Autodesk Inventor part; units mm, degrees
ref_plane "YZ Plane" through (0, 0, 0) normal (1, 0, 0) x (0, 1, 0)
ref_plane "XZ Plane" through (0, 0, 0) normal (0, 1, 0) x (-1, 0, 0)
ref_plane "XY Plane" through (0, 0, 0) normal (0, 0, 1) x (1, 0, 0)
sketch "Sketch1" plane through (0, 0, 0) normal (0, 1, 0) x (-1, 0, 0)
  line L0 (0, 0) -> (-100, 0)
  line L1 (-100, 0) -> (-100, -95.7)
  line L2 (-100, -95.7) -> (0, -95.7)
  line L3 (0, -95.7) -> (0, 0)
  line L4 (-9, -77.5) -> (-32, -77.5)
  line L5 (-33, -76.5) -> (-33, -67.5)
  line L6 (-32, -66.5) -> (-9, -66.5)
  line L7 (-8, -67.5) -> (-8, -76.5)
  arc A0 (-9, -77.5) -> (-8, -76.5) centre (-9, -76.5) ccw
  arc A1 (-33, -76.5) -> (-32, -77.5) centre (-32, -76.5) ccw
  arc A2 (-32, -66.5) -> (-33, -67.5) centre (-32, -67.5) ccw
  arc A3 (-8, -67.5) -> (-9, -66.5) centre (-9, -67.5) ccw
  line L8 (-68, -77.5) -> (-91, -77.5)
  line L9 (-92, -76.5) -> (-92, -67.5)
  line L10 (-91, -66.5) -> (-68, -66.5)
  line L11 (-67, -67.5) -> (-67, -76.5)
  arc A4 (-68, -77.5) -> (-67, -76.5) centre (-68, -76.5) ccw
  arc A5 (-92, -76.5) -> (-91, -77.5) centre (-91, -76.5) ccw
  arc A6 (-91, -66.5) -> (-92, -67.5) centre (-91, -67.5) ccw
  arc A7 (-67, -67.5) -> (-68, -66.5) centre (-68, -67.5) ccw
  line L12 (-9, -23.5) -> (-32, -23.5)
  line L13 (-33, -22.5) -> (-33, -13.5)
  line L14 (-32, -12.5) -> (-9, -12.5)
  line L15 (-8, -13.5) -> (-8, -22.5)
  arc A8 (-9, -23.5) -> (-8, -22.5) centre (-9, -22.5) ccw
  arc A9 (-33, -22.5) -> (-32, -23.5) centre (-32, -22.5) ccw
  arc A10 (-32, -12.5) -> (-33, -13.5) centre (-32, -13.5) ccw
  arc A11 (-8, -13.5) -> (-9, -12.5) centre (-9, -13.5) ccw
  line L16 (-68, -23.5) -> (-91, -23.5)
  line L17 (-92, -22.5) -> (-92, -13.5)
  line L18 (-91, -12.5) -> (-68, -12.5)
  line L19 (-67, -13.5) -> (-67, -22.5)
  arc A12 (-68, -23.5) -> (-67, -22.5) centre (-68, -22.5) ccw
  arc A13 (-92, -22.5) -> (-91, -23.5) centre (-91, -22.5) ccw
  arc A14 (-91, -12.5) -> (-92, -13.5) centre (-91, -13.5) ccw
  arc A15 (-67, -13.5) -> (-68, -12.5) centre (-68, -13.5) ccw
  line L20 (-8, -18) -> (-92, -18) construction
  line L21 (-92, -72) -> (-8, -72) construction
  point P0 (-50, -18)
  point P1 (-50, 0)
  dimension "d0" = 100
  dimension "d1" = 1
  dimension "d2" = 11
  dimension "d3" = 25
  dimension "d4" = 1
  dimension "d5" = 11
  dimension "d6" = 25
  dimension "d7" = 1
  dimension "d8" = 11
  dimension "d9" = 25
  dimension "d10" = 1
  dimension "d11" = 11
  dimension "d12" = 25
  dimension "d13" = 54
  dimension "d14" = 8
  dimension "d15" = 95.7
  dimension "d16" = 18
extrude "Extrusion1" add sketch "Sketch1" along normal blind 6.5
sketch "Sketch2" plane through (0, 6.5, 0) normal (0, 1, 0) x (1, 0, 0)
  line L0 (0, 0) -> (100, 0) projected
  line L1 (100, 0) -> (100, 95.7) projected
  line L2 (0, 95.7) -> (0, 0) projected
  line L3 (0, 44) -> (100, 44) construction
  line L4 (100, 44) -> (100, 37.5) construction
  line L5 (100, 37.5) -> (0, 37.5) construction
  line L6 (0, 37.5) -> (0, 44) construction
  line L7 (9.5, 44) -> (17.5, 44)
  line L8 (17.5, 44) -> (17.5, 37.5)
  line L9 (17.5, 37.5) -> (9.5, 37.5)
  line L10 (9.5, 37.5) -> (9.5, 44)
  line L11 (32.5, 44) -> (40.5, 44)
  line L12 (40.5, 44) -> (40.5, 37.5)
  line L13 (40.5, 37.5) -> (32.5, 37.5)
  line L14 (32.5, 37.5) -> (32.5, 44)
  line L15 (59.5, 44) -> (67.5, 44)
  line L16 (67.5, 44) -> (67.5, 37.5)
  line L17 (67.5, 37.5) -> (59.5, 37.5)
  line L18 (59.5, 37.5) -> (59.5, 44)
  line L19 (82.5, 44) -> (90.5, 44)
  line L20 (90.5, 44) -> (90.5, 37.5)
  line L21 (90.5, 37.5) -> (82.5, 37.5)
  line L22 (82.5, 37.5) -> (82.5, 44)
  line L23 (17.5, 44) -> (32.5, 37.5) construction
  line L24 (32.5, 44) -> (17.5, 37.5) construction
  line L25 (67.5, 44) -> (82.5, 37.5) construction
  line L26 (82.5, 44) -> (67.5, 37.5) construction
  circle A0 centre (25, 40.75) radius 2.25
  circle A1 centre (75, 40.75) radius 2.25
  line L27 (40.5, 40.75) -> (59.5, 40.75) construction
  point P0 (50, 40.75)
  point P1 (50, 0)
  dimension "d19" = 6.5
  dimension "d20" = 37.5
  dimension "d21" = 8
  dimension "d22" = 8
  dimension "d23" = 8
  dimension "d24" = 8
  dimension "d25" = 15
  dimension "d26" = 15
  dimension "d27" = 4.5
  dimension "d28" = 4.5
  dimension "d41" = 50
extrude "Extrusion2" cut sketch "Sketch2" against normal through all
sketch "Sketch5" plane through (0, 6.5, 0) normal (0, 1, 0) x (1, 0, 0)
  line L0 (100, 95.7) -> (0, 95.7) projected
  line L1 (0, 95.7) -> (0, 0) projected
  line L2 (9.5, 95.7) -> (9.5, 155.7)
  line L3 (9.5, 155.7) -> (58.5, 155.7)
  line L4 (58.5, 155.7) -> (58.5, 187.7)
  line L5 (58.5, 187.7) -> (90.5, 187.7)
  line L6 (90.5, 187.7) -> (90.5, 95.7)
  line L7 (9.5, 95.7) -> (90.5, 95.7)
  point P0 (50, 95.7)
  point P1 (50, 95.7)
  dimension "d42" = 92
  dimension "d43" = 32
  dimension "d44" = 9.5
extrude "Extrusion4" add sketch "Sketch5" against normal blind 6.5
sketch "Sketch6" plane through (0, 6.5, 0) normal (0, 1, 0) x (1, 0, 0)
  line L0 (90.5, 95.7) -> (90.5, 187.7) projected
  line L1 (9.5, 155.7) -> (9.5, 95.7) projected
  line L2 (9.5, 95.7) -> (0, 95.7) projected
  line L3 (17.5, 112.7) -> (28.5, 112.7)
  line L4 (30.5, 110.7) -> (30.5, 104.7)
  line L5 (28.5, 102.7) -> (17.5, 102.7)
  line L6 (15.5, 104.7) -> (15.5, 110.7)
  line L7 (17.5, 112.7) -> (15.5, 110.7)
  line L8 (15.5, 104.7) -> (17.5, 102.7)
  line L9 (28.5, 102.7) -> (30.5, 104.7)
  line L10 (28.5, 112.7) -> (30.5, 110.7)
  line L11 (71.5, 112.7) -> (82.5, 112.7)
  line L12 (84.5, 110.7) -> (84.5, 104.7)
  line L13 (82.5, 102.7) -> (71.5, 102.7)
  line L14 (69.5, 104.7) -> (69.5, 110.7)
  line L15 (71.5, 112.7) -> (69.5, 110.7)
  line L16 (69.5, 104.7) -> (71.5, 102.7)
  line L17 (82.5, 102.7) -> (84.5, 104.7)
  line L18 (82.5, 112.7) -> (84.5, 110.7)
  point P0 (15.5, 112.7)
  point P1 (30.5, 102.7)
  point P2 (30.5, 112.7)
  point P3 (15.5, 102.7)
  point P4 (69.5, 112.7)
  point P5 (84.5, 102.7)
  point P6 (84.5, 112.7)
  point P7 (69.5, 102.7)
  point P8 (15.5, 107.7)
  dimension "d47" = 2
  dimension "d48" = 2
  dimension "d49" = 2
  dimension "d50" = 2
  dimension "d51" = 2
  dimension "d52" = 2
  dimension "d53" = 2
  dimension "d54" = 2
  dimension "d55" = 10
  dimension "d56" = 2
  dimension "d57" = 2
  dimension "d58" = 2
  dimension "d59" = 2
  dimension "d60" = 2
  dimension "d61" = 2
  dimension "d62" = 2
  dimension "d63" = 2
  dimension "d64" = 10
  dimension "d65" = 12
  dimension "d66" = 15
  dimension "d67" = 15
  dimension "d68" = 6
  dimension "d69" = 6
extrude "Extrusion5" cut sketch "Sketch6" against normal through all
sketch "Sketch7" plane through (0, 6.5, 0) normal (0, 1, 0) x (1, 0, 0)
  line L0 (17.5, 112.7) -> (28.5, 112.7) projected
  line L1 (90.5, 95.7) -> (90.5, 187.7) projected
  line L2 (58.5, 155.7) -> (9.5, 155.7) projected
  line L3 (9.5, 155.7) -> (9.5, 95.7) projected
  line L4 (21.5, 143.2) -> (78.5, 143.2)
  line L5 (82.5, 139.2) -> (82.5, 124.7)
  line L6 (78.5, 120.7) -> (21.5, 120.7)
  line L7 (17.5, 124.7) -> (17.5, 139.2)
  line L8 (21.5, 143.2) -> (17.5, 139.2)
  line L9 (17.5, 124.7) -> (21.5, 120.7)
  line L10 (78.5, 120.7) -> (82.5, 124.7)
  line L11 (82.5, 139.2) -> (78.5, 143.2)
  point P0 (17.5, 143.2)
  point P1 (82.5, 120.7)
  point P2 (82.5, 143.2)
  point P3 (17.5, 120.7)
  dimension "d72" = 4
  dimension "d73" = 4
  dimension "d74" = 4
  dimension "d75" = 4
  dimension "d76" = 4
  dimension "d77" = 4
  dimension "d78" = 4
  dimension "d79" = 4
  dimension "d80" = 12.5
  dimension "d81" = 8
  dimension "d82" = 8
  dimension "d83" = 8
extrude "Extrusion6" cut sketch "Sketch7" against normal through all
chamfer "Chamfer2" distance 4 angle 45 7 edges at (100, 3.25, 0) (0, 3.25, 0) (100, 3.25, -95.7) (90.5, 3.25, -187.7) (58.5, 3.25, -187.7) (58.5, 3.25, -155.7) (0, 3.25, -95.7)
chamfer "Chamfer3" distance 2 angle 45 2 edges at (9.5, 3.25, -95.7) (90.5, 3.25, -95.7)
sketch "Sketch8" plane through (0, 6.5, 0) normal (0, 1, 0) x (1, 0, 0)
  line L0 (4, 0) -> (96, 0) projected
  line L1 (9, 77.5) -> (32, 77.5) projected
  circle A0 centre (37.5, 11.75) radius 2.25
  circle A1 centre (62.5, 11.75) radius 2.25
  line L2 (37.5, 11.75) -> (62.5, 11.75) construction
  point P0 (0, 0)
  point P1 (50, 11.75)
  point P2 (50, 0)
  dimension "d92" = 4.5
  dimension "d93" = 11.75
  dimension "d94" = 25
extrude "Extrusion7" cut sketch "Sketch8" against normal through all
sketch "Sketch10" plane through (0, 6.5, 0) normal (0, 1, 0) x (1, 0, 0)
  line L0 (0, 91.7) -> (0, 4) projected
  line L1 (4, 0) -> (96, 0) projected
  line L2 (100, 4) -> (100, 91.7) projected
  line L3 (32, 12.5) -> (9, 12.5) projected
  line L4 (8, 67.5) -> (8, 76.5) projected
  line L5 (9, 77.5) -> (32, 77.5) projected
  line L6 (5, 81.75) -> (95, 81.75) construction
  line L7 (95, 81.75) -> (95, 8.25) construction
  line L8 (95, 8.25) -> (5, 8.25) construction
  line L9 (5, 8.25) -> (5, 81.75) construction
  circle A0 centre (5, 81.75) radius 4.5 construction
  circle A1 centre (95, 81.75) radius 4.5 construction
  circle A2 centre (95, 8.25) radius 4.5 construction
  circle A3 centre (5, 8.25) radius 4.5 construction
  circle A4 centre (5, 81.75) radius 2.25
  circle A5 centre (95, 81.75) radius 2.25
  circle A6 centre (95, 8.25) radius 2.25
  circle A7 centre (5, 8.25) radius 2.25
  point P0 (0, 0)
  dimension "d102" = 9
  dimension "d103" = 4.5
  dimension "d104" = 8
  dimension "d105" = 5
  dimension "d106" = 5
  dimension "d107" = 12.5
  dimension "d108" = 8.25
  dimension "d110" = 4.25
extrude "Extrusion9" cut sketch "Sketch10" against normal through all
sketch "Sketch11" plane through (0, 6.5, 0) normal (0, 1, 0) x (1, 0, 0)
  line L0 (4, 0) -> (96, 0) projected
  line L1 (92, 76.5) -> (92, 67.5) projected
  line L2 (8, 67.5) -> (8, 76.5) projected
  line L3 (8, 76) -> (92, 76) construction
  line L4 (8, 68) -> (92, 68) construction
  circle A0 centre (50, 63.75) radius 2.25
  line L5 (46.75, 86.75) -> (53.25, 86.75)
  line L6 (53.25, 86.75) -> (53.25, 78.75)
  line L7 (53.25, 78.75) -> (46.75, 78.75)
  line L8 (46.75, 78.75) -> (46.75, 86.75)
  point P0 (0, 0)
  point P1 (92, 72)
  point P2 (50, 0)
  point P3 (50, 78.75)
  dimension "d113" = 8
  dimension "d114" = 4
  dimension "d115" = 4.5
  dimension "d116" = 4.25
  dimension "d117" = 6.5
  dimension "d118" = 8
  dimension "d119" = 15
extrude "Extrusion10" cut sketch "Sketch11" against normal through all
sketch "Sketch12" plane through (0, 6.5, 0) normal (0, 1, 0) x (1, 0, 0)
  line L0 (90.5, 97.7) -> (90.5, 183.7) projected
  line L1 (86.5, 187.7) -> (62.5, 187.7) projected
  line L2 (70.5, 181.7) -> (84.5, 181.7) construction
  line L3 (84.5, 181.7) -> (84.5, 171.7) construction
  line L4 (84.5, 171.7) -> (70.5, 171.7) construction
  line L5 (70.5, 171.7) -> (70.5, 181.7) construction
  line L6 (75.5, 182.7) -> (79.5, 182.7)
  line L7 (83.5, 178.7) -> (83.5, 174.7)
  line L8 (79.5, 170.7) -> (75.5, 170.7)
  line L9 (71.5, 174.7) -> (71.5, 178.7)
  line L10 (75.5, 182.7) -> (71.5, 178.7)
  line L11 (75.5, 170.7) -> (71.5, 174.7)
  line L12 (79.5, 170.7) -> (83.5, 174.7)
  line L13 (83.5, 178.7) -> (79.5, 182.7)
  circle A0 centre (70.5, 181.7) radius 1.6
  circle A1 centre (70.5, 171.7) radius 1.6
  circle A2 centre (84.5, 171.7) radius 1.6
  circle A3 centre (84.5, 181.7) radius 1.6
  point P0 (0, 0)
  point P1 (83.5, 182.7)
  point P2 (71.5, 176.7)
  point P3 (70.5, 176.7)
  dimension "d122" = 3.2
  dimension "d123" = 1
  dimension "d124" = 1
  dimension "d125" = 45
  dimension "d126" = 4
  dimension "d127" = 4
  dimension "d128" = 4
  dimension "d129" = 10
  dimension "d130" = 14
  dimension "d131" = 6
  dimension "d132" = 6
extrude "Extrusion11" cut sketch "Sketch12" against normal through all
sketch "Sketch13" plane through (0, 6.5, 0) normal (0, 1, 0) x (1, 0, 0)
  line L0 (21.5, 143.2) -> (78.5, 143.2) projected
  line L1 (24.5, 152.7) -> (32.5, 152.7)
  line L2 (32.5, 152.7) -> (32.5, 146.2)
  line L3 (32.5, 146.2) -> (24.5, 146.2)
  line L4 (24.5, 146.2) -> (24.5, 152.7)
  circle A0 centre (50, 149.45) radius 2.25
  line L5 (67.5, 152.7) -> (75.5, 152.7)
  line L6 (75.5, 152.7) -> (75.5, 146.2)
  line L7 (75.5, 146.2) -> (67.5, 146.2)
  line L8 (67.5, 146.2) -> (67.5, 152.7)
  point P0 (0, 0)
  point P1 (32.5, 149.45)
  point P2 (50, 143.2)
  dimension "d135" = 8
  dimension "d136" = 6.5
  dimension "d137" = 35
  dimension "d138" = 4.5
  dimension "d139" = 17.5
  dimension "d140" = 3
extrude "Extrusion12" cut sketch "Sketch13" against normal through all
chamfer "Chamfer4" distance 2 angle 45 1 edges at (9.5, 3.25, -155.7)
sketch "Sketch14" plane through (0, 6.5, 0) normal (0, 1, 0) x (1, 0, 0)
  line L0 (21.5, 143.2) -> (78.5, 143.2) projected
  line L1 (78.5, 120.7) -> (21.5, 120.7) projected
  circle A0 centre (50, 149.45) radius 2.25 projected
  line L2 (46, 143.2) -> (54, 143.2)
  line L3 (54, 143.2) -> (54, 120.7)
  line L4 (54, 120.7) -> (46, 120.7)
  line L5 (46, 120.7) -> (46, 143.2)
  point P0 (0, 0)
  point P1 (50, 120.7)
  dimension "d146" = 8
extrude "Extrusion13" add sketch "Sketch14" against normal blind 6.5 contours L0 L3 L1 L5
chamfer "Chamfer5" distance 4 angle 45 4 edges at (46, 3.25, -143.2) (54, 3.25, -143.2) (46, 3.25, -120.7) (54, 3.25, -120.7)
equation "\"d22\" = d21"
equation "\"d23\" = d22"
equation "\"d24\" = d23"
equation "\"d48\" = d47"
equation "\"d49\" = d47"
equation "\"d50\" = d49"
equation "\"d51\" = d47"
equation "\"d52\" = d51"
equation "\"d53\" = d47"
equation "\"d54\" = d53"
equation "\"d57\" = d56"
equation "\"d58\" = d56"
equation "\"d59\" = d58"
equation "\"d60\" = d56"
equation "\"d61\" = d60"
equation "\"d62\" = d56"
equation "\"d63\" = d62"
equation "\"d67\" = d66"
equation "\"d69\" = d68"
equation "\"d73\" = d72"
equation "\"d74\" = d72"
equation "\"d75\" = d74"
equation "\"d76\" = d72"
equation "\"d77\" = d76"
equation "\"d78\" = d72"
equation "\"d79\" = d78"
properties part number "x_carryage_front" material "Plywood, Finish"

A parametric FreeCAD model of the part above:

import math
import FreeCAD as App
import Part
import Sketcher

V = App.Vector
Q = App.Units.Quantity


def edges_at(feature, points):
    """Names of the edges that pass closest to the given points."""
    edges = feature.Shape.Edges
    near = lambda p: min(range(len(edges)), key=lambda i: edges[i].distToShape(Part.Vertex(*p))[0])
    return sorted({f"Edge{near(p) + 1}" for p in points})

doc = App.newDocument("Part")
body = doc.addObject("PartDesign::Body", "Body")

# Sketch on XZ plane
sketch1 = doc.addObject("Sketcher::SketchObject", "Sketch")
body.addObject(sketch1)
sketch1.AttachmentSupport = (doc.XZ_Plane, [""])
sketch1.MapMode = "FlatFace"
sketch1.addGeometry(Part.LineSegment(V(0, -95.7, 0), V(0, 0, 0)), False)
sketch1.addGeometry(Part.LineSegment(V(0, 0, 0), V(100, 0, 0)), False)
sketch1.addGeometry(Part.LineSegment(V(100, 0, 0), V(100, -95.7, 0)), False)
sketch1.addGeometry(Part.LineSegment(V(100, -95.7, 0), V(0, -95.7, 0)), False)
sketch1.addGeometry(Part.ArcOfCircle(Part.Circle(V(68, -76.5, 0), V(0, 0, 1), 1), math.radians(180), math.radians(270)), False)
sketch1.addGeometry(Part.LineSegment(V(68, -77.5, 0), V(91, -77.5, 0)), False)
sketch1.addGeometry(Part.ArcOfCircle(Part.Circle(V(91, -76.5, 0), V(0, 0, 1), 1), math.radians(-90), math.radians(0)), False)
sketch1.addGeometry(Part.LineSegment(V(92, -76.5, 0), V(92, -67.5, 0)), False)
sketch1.addGeometry(Part.ArcOfCircle(Part.Circle(V(91, -67.5, 0), V(0, 0, 1), 1), math.radians(0), math.radians(90)), False)
sketch1.addGeometry(Part.LineSegment(V(91, -66.5, 0), V(68, -66.5, 0)), False)
sketch1.addGeometry(Part.ArcOfCircle(Part.Circle(V(68, -67.5, 0), V(0, 0, 1), 1), math.radians(90), math.radians(180)), False)
sketch1.addGeometry(Part.LineSegment(V(67, -67.5, 0), V(67, -76.5, 0)), False)
sketch1.addGeometry(Part.ArcOfCircle(Part.Circle(V(9, -76.5, 0), V(0, 0, 1), 1), math.radians(180), math.radians(270)), False)
sketch1.addGeometry(Part.LineSegment(V(9, -77.5, 0), V(32, -77.5, 0)), False)
sketch1.addGeometry(Part.ArcOfCircle(Part.Circle(V(32, -76.5, 0), V(0, 0, 1), 1), math.radians(-90), math.radians(0)), False)
sketch1.addGeometry(Part.LineSegment(V(33, -76.5, 0), V(33, -67.5, 0)), False)
sketch1.addGeometry(Part.ArcOfCircle(Part.Circle(V(32, -67.5, 0), V(0, 0, 1), 1), math.radians(0), math.radians(90)), False)
sketch1.addGeometry(Part.LineSegment(V(32, -66.5, 0), V(9, -66.5, 0)), False)
sketch1.addGeometry(Part.ArcOfCircle(Part.Circle(V(9, -67.5, 0), V(0, 0, 1), 1), math.radians(90), math.radians(180)), False)
sketch1.addGeometry(Part.LineSegment(V(8, -67.5, 0), V(8, -76.5, 0)), False)
sketch1.addGeometry(Part.ArcOfCircle(Part.Circle(V(68, -22.5, 0), V(0, 0, 1), 1), math.radians(180), math.radians(270)), False)
sketch1.addGeometry(Part.LineSegment(V(68, -23.5, 0), V(91, -23.5, 0)), False)
sketch1.addGeometry(Part.ArcOfCircle(Part.Circle(V(91, -22.5, 0), V(0, 0, 1), 1), math.radians(-90), math.radians(0)), False)
sketch1.addGeometry(Part.LineSegment(V(92, -22.5, 0), V(92, -13.5, 0)), False)
sketch1.addGeometry(Part.ArcOfCircle(Part.Circle(V(91, -13.5, 0), V(0, 0, 1), 1), math.radians(0), math.radians(90)), False)
sketch1.addGeometry(Part.LineSegment(V(91, -12.5, 0), V(68, -12.5, 0)), False)
sketch1.addGeometry(Part.ArcOfCircle(Part.Circle(V(68, -13.5, 0), V(0, 0, 1), 1), math.radians(90), math.radians(180)), False)
sketch1.addGeometry(Part.LineSegment(V(67, -13.5, 0), V(67, -22.5, 0)), False)
sketch1.addGeometry(Part.ArcOfCircle(Part.Circle(V(9, -22.5, 0), V(0, 0, 1), 1), math.radians(180), math.radians(270)), False)
sketch1.addGeometry(Part.LineSegment(V(9, -23.5, 0), V(32, -23.5, 0)), False)
sketch1.addGeometry(Part.ArcOfCircle(Part.Circle(V(32, -22.5, 0), V(0, 0, 1), 1), math.radians(-90), math.radians(0)), False)
sketch1.addGeometry(Part.LineSegment(V(33, -22.5, 0), V(33, -13.5, 0)), False)
sketch1.addGeometry(Part.ArcOfCircle(Part.Circle(V(32, -13.5, 0), V(0, 0, 1), 1), math.radians(0), math.radians(90)), False)
sketch1.addGeometry(Part.LineSegment(V(32, -12.5, 0), V(9, -12.5, 0)), False)
sketch1.addGeometry(Part.ArcOfCircle(Part.Circle(V(9, -13.5, 0), V(0, 0, 1), 1), math.radians(90), math.radians(180)), False)
sketch1.addGeometry(Part.LineSegment(V(8, -13.5, 0), V(8, -22.5, 0)), False)
sketch1.addConstraint(Sketcher.Constraint("Coincident", 0, 2, 1, 1))
sketch1.addConstraint(Sketcher.Constraint("Coincident", 1, 2, 2, 1))
sketch1.addConstraint(Sketcher.Constraint("Coincident", 2, 2, 3, 1))
sketch1.addConstraint(Sketcher.Constraint("Coincident", 3, 2, 0, 1))
sketch1.addConstraint(Sketcher.Constraint("Tangent", 4, 2, 5, 1))
sketch1.addConstraint(Sketcher.Constraint("Tangent", 5, 2, 6, 1))
sketch1.addConstraint(Sketcher.Constraint("Tangent", 6, 2, 7, 1))
sketch1.addConstraint(Sketcher.Constraint("Tangent", 7, 2, 8, 1))
sketch1.addConstraint(Sketcher.Constraint("Tangent", 8, 2, 9, 1))
sketch1.addConstraint(Sketcher.Constraint("Tangent", 9, 2, 10, 1))
sketch1.addConstraint(Sketcher.Constraint("Tangent", 10, 2, 11, 1))
sketch1.addConstraint(Sketcher.Constraint("Tangent", 11, 2, 4, 1))
sketch1.addConstraint(Sketcher.Constraint("Tangent", 12, 2, 13, 1))
sketch1.addConstraint(Sketcher.Constraint("Tangent", 13, 2, 14, 1))
sketch1.addConstraint(Sketcher.Constraint("Tangent", 14, 2, 15, 1))
sketch1.addConstraint(Sketcher.Constraint("Tangent", 15, 2, 16, 1))
sketch1.addConstraint(Sketcher.Constraint("Tangent", 16, 2, 17, 1))
sketch1.addConstraint(Sketcher.Constraint("Tangent", 17, 2, 18, 1))
sketch1.addConstraint(Sketcher.Constraint("Tangent", 18, 2, 19, 1))
sketch1.addConstraint(Sketcher.Constraint("Tangent", 19, 2, 12, 1))
sketch1.addConstraint(Sketcher.Constraint("Tangent", 20, 2, 21, 1))
sketch1.addConstraint(Sketcher.Constraint("Tangent", 21, 2, 22, 1))
sketch1.addConstraint(Sketcher.Constraint("Tangent", 22, 2, 23, 1))
sketch1.addConstraint(Sketcher.Constraint("Tangent", 23, 2, 24, 1))
sketch1.addConstraint(Sketcher.Constraint("Tangent", 24, 2, 25, 1))
sketch1.addConstraint(Sketcher.Constraint("Tangent", 25, 2, 26, 1))
sketch1.addConstraint(Sketcher.Constraint("Tangent", 26, 2, 27, 1))
sketch1.addConstraint(Sketcher.Constraint("Tangent", 27, 2, 20, 1))
sketch1.addConstraint(Sketcher.Constraint("Tangent", 28, 2, 29, 1))
sketch1.addConstraint(Sketcher.Constraint("Tangent", 29, 2, 30, 1))
sketch1.addConstraint(Sketcher.Constraint("Tangent", 30, 2, 31, 1))
sketch1.addConstraint(Sketcher.Constraint("Tangent", 31, 2, 32, 1))
sketch1.addConstraint(Sketcher.Constraint("Tangent", 32, 2, 33, 1))
sketch1.addConstraint(Sketcher.Constraint("Tangent", 33, 2, 34, 1))
sketch1.addConstraint(Sketcher.Constraint("Tangent", 34, 2, 35, 1))
sketch1.addConstraint(Sketcher.Constraint("Tangent", 35, 2, 28, 1))
sketch1.addConstraint(Sketcher.Constraint("Vertical", 0))
sketch1.addConstraint(Sketcher.Constraint("Horizontal", 1))
sketch1.addConstraint(Sketcher.Constraint("Vertical", 2))
sketch1.addConstraint(Sketcher.Constraint("Horizontal", 3))
sketch1.addConstraint(Sketcher.Constraint("Horizontal", 5))
sketch1.addConstraint(Sketcher.Constraint("Vertical", 7))
sketch1.addConstraint(Sketcher.Constraint("Horizontal", 9))
sketch1.addConstraint(Sketcher.Constraint("Vertical", 11))
sketch1.addConstraint(Sketcher.Constraint("Horizontal", 13))
sketch1.addConstraint(Sketcher.Constraint("Vertical", 15))
sketch1.addConstraint(Sketcher.Constraint("Horizontal", 17))
sketch1.addConstraint(Sketcher.Constraint("Vertical", 19))
sketch1.addConstraint(Sketcher.Constraint("Horizontal", 21))
sketch1.addConstraint(Sketcher.Constraint("Vertical", 23))
sketch1.addConstraint(Sketcher.Constraint("Horizontal", 25))
sketch1.addConstraint(Sketcher.Constraint("Vertical", 27))
sketch1.addConstraint(Sketcher.Constraint("Horizontal", 29))
sketch1.addConstraint(Sketcher.Constraint("Vertical", 31))
sketch1.addConstraint(Sketcher.Constraint("Horizontal", 33))
sketch1.addConstraint(Sketcher.Constraint("Vertical", 35))
sketch1.addConstraint(Sketcher.Constraint("Coincident", 0, 2, -1, 1))
sketch1.addConstraint(Sketcher.Constraint("Equal", 4, 6))
sketch1.addConstraint(Sketcher.Constraint("Equal", 6, 8))
sketch1.addConstraint(Sketcher.Constraint("Equal", 8, 10))
sketch1.addConstraint(Sketcher.Constraint("Equal", 10, 12))
sketch1.addConstraint(Sketcher.Constraint("Equal", 12, 14))
sketch1.addConstraint(Sketcher.Constraint("Equal", 14, 16))
sketch1.addConstraint(Sketcher.Constraint("Equal", 16, 18))
sketch1.addConstraint(Sketcher.Constraint("Equal", 18, 20))
sketch1.addConstraint(Sketcher.Constraint("Equal", 20, 22))
sketch1.addConstraint(Sketcher.Constraint("Equal", 22, 24))
sketch1.addConstraint(Sketcher.Constraint("Equal", 24, 26))
sketch1.addConstraint(Sketcher.Constraint("Equal", 26, 28))
sketch1.addConstraint(Sketcher.Constraint("Equal", 28, 30))
sketch1.addConstraint(Sketcher.Constraint("Equal", 30, 32))
sketch1.addConstraint(Sketcher.Constraint("Equal", 32, 34))
sketch1.addConstraint(Sketcher.Constraint("Horizontal", 6, 3, 12, 3))
sketch1.addConstraint(Sketcher.Constraint("Horizontal", 10, 3, 16, 3))
sketch1.addConstraint(Sketcher.Constraint("Horizontal", 22, 3, 28, 3))
sketch1.addConstraint(Sketcher.Constraint("Horizontal", 26, 3, 32, 3))
sketch1.addConstraint(Sketcher.Constraint("Vertical", 10, 3, 20, 3))
sketch1.addConstraint(Sketcher.Constraint("Vertical", 8, 3, 22, 3))
sketch1.addConstraint(Sketcher.Constraint("Vertical", 18, 3, 28, 3))
sketch1.addConstraint(Sketcher.Constraint("Vertical", 16, 3, 30, 3))
sketch1.addConstraint(Sketcher.Constraint("Equal", 9, 13))
sketch1.addConstraint(Sketcher.Constraint("Equal", 19, 23))
sketch1.addConstraint(Sketcher.Constraint("Radius", 4, Q("1 mm")))
sketch1.addConstraint(Sketcher.Constraint("DistanceX", 1, 1, 1, 2, Q("100 mm")))
sketch1.addConstraint(Sketcher.Constraint("DistanceY", 0, 1, 0, 2, Q("95.7 mm")))
sketch1.addConstraint(Sketcher.Constraint("DistanceX", -1, 1, 18, 2, Q("8 mm")))
sketch1.addConstraint(Sketcher.Constraint("DistanceY", 4, 3, 20, 3, Q("54 mm")))
sketch1.addConstraint(Sketcher.Constraint("DistanceX", 6, 2, 2, 2, Q("8 mm")))
sketch1.addConstraint(Sketcher.Constraint("DistanceY", 5, 2, 8, 2, Q("11 mm")))
sketch1.addConstraint(Sketcher.Constraint("DistanceX", 5, 1, 5, 2, Q("23 mm")))
sketch1.addConstraint(Sketcher.Constraint("DistanceY", 4, 3, -1, 1, Q("76.5 mm")))
pad1 = doc.addObject("PartDesign::Pad", "Pad")
body.addObject(pad1)
pad1.Profile = sketch1
pad1.Length = 6.5
pad1.Reversed = True

# Sketch on XZ plane
sketch2 = doc.addObject("Sketcher::SketchObject", "Sketch001")
body.addObject(sketch2)
sketch2.AttachmentSupport = (doc.XZ_Plane, [""])
sketch2.MapMode = "FlatFace"
sketch2.AttachmentOffset = App.Placement(V(0, 0, -6.5), App.Rotation())
sketch2.addGeometry(Part.LineSegment(V(17.5, -44, 0), V(9.5, -44, 0)), False)
sketch2.addGeometry(Part.LineSegment(V(9.5, -44, 0), V(9.5, -37.5, 0)), False)
sketch2.addGeometry(Part.LineSegment(V(9.5, -37.5, 0), V(17.5, -37.5, 0)), False)
sketch2.addGeometry(Part.LineSegment(V(17.5, -37.5, 0), V(17.5, -44, 0)), False)
sketch2.addGeometry(Part.LineSegment(V(40.5, -44, 0), V(32.5, -44, 0)), False)
sketch2.addGeometry(Part.LineSegment(V(32.5, -44, 0), V(32.5, -37.5, 0)), False)
sketch2.addGeometry(Part.LineSegment(V(32.5, -37.5, 0), V(40.5, -37.5, 0)), False)
sketch2.addGeometry(Part.LineSegment(V(40.5, -37.5, 0), V(40.5, -44, 0)), False)
sketch2.addGeometry(Part.LineSegment(V(67.5, -44, 0), V(59.5, -44, 0)), False)
sketch2.addGeometry(Part.LineSegment(V(59.5, -44, 0), V(59.5, -37.5, 0)), False)
sketch2.addGeometry(Part.LineSegment(V(59.5, -37.5, 0), V(67.5, -37.5, 0)), False)
sketch2.addGeometry(Part.LineSegment(V(67.5, -37.5, 0), V(67.5, -44, 0)), False)
sketch2.addGeometry(Part.LineSegment(V(90.5, -44, 0), V(82.5, -44, 0)), False)
sketch2.addGeometry(Part.LineSegment(V(82.5, -44, 0), V(82.5, -37.5, 0)), False)
sketch2.addGeometry(Part.LineSegment(V(82.5, -37.5, 0), V(90.5, -37.5, 0)), False)
sketch2.addGeometry(Part.LineSegment(V(90.5, -37.5, 0), V(90.5, -44, 0)), False)
sketch2.addGeometry(Part.Circle(V(25, -40.8, 0), V(0, 0, 1), 2.2), False)
sketch2.addGeometry(Part.Circle(V(75, -40.8, 0), V(0, 0, 1), 2.2), False)
sketch2.addConstraint(Sketcher.Constraint("Coincident", 0, 2, 1, 1))
sketch2.addConstraint(Sketcher.Constraint("Coincident", 1, 2, 2, 1))
sketch2.addConstraint(Sketcher.Constraint("Coincident", 2, 2, 3, 1))
sketch2.addConstraint(Sketcher.Constraint("Coincident", 3, 2, 0, 1))
sketch2.addConstraint(Sketcher.Constraint("Coincident", 4, 2, 5, 1))
sketch2.addConstraint(Sketcher.Constraint("Coincident", 5, 2, 6, 1))
sketch2.addConstraint(Sketcher.Constraint("Coincident", 6, 2, 7, 1))
sketch2.addConstraint(Sketcher.Constraint("Coincident", 7, 2, 4, 1))
sketch2.addConstraint(Sketcher.Constraint("Coincident", 8, 2, 9, 1))
sketch2.addConstraint(Sketcher.Constraint("Coincident", 9, 2, 10, 1))
sketch2.addConstraint(Sketcher.Constraint("Coincident", 10, 2, 11, 1))
sketch2.addConstraint(Sketcher.Constraint("Coincident", 11, 2, 8, 1))
sketch2.addConstraint(Sketcher.Constraint("Coincident", 12, 2, 13, 1))
sketch2.addConstraint(Sketcher.Constraint("Coincident", 13, 2, 14, 1))
sketch2.addConstraint(Sketcher.Constraint("Coincident", 14, 2, 15, 1))
sketch2.addConstraint(Sketcher.Constraint("Coincident", 15, 2, 12, 1))
sketch2.addConstraint(Sketcher.Constraint("Horizontal", 0))
sketch2.addConstraint(Sketcher.Constraint("Vertical", 1))
sketch2.addConstraint(Sketcher.Constraint("Horizontal", 2))
sketch2.addConstraint(Sketcher.Constraint("Vertical", 3))
sketch2.addConstraint(Sketcher.Constraint("Horizontal", 4))
sketch2.addConstraint(Sketcher.Constraint("Vertical", 5))
sketch2.addConstraint(Sketcher.Constraint("Horizontal", 6))
sketch2.addConstraint(Sketcher.Constraint("Vertical", 7))
sketch2.addConstraint(Sketcher.Constraint("Horizontal", 8))
sketch2.addConstraint(Sketcher.Constraint("Vertical", 9))
sketch2.addConstraint(Sketcher.Constraint("Horizontal", 10))
sketch2.addConstraint(Sketcher.Constraint("Vertical", 11))
sketch2.addConstraint(Sketcher.Constraint("Horizontal", 12))
sketch2.addConstraint(Sketcher.Constraint("Vertical", 13))
sketch2.addConstraint(Sketcher.Constraint("Horizontal", 14))
sketch2.addConstraint(Sketcher.Constraint("Vertical", 15))
sketch2.addConstraint(Sketcher.Constraint("Equal", 16, 17))
sketch2.addConstraint(Sketcher.Constraint("Horizontal", 16, 3, 17, 3))
sketch2.addConstraint(Sketcher.Constraint("Horizontal", 3, 2, 4, 2))
sketch2.addConstraint(Sketcher.Constraint("Horizontal", 2, 2, 5, 2))
sketch2.addConstraint(Sketcher.Constraint("Horizontal", 7, 2, 8, 2))
sketch2.addConstraint(Sketcher.Constraint("Horizontal", 6, 2, 9, 2))
sketch2.addConstraint(Sketcher.Constraint("Horizontal", 11, 2, 12, 2))
sketch2.addConstraint(Sketcher.Constraint("Horizontal", 10, 2, 13, 2))
sketch2.addConstraint(Sketcher.Constraint("Equal", 2, 4))
sketch2.addConstraint(Sketcher.Constraint("Equal", 6, 8))
sketch2.addConstraint(Sketcher.Constraint("Equal", 10, 12))
sketch2.addConstraint(Sketcher.Constraint("Diameter", 16, Q("4.5 mm")))
sketch2.addConstraint(Sketcher.Constraint("DistanceX", 0, 2, 0, 1, Q("8 mm")))
sketch2.addConstraint(Sketcher.Constraint("DistanceY", 1, 1, 1, 2, Q("6.5 mm")))
sketch2.addConstraint(Sketcher.Constraint("DistanceX", 16, 3, 17, 3, Q("50 mm")))
sketch2.addConstraint(Sketcher.Constraint("DistanceX", 3, 2, 4, 2, Q("15 mm")))
sketch2.addConstraint(Sketcher.Constraint("DistanceX", 11, 2, 12, 2, Q("15 mm")))
sketch2.addConstraint(Sketcher.Constraint("DistanceY", 1, 2, -1, 1, Q("37.5 mm")))
sketch2.addConstraint(Sketcher.Constraint("DistanceX", -1, 1, 16, 3, Q("25 mm")))
sketch2.addConstraint(Sketcher.Constraint("DistanceX", 7, 2, 8, 2, Q("19 mm")))
sketch2.addConstraint(Sketcher.Constraint("DistanceX", -1, 1, 0, 2, Q("9.5 mm")))
sketch2.addConstraint(Sketcher.Constraint("DistanceY", 16, 3, -1, 1, Q("40.75 mm")))
pocket1 = doc.addObject("PartDesign::Pocket", "Pocket")
body.addObject(pocket1)
pocket1.Profile = sketch2
pocket1.Type = "ThroughAll"
pocket1.Reversed = True

# Sketch on XZ plane
sketch3 = doc.addObject("Sketcher::SketchObject", "Sketch002")
body.addObject(sketch3)
sketch3.AttachmentSupport = (doc.XZ_Plane, [""])
sketch3.MapMode = "FlatFace"
sketch3.AttachmentOffset = App.Placement(V(0, 0, -6.5), App.Rotation())
sketch3.addGeometry(Part.LineSegment(V(10, -96, 0), V(90, -96, 0)), False)
sketch3.addGeometry(Part.LineSegment(V(90, -96, 0), V(90, -188, 0)), False)
sketch3.addGeometry(Part.LineSegment(V(90, -188, 0), V(58, -188, 0)), False)
sketch3.addGeometry(Part.LineSegment(V(58, -188, 0), V(58, -156, 0)), False)
sketch3.addGeometry(Part.LineSegment(V(58, -156, 0), V(10, -156, 0)), False)
sketch3.addGeometry(Part.LineSegment(V(10, -156, 0), V(10, -96, 0)), False)
sketch3.addConstraint(Sketcher.Constraint("Coincident", 0, 2, 1, 1))
sketch3.addConstraint(Sketcher.Constraint("Coincident", 1, 2, 2, 1))
sketch3.addConstraint(Sketcher.Constraint("Coincident", 2, 2, 3, 1))
sketch3.addConstraint(Sketcher.Constraint("Coincident", 3, 2, 4, 1))
sketch3.addConstraint(Sketcher.Constraint("Coincident", 4, 2, 5, 1))
sketch3.addConstraint(Sketcher.Constraint("Coincident", 5, 2, 0, 1))
sketch3.addConstraint(Sketcher.Constraint("Horizontal", 0))
sketch3.addConstraint(Sketcher.Constraint("Vertical", 1))
sketch3.addConstraint(Sketcher.Constraint("Horizontal", 2))
sketch3.addConstraint(Sketcher.Constraint("Vertical", 3))
sketch3.addConstraint(Sketcher.Constraint("Horizontal", 4))
sketch3.addConstraint(Sketcher.Constraint("Vertical", 5))
sketch3.addConstraint(Sketcher.Constraint("Equal", 2, 3))
sketch3.addConstraint(Sketcher.Constraint("DistanceX", 2, 2, 2, 1, Q("32 mm")))
sketch3.addConstraint(Sketcher.Constraint("DistanceY", 1, 2, 1, 1, Q("92 mm")))
sketch3.addConstraint(Sketcher.Constraint("DistanceX", -1, 1, 4, 2, Q("9.5 mm")))
sketch3.addConstraint(Sketcher.Constraint("DistanceX", 0, 1, 0, 2, Q("81 mm")))
sketch3.addConstraint(Sketcher.Constraint("DistanceY", 0, 2, -1, 1, Q("95.7 mm")))
pad2 = doc.addObject("PartDesign::Pad", "Pad001")
body.addObject(pad2)
pad2.Profile = sketch3
pad2.Length = 6.5

# Sketch on XZ plane
sketch4 = doc.addObject("Sketcher::SketchObject", "Sketch003")
body.addObject(sketch4)
sketch4.AttachmentSupport = (doc.XZ_Plane, [""])
sketch4.MapMode = "FlatFace"
sketch4.AttachmentOffset = App.Placement(V(0, 0, -6.5), App.Rotation())
sketch4.addGeometry(Part.LineSegment(V(28.5, -112.7, 0), V(17.5, -112.7, 0)), False)
sketch4.addGeometry(Part.LineSegment(V(17.5, -112.7, 0), V(15.5, -110.7, 0)), False)
sketch4.addGeometry(Part.LineSegment(V(15.5, -110.7, 0), V(15.5, -104.7, 0)), False)
sketch4.addGeometry(Part.LineSegment(V(15.5, -104.7, 0), V(17.5, -102.7, 0)), False)
sketch4.addGeometry(Part.LineSegment(V(17.5, -102.7, 0), V(28.5, -102.7, 0)), False)
sketch4.addGeometry(Part.LineSegment(V(28.5, -102.7, 0), V(30.5, -104.7, 0)), False)
sketch4.addGeometry(Part.LineSegment(V(30.5, -104.7, 0), V(30.5, -110.7, 0)), False)
sketch4.addGeometry(Part.LineSegment(V(30.5, -110.7, 0), V(28.5, -112.7, 0)), False)
sketch4.addGeometry(Part.LineSegment(V(82.5, -112.7, 0), V(71.5, -112.7, 0)), False)
sketch4.addGeometry(Part.LineSegment(V(71.5, -112.7, 0), V(69.5, -110.7, 0)), False)
sketch4.addGeometry(Part.LineSegment(V(69.5, -110.7, 0), V(69.5, -104.7, 0)), False)
sketch4.addGeometry(Part.LineSegment(V(69.5, -104.7, 0), V(71.5, -102.7, 0)), False)
sketch4.addGeometry(Part.LineSegment(V(71.5, -102.7, 0), V(82.5, -102.7, 0)), False)
sketch4.addGeometry(Part.LineSegment(V(82.5, -102.7, 0), V(84.5, -104.7, 0)), False)
sketch4.addGeometry(Part.LineSegment(V(84.5, -104.7, 0), V(84.5, -110.7, 0)), False)
sketch4.addGeometry(Part.LineSegment(V(84.5, -110.7, 0), V(82.5, -112.7, 0)), False)
sketch4.addConstraint(Sketcher.Constraint("Coincident", 0, 2, 1, 1))
sketch4.addConstraint(Sketcher.Constraint("Coincident", 1, 2, 2, 1))
sketch4.addConstraint(Sketcher.Constraint("Coincident", 2, 2, 3, 1))
sketch4.addConstraint(Sketcher.Constraint("Coincident", 3, 2, 4, 1))
sketch4.addConstraint(Sketcher.Constraint("Coincident", 4, 2, 5, 1))
sketch4.addConstraint(Sketcher.Constraint("Coincident", 5, 2, 6, 1))
sketch4.addConstraint(Sketcher.Constraint("Coincident", 6, 2, 7, 1))
sketch4.addConstraint(Sketcher.Constraint("Coincident", 7, 2, 0, 1))
sketch4.addConstraint(Sketcher.Constraint("Coincident", 8, 2, 9, 1))
sketch4.addConstraint(Sketcher.Constraint("Coincident", 9, 2, 10, 1))
sketch4.addConstraint(Sketcher.Constraint("Coincident", 10, 2, 11, 1))
sketch4.addConstraint(Sketcher.Constraint("Coincident", 11, 2, 12, 1))
sketch4.addConstraint(Sketcher.Constraint("Coincident", 12, 2, 13, 1))
sketch4.addConstraint(Sketcher.Constraint("Coincident", 13, 2, 14, 1))
sketch4.addConstraint(Sketcher.Constraint("Coincident", 14, 2, 15, 1))
sketch4.addConstraint(Sketcher.Constraint("Coincident", 15, 2, 8, 1))
sketch4.addConstraint(Sketcher.Constraint("Horizontal", 0))
sketch4.addConstraint(Sketcher.Constraint("Vertical", 2))
sketch4.addConstraint(Sketcher.Constraint("Horizontal", 4))
sketch4.addConstraint(Sketcher.Constraint("Vertical", 6))
sketch4.addConstraint(Sketcher.Constraint("Horizontal", 8))
sketch4.addConstraint(Sketcher.Constraint("Vertical", 10))
sketch4.addConstraint(Sketcher.Constraint("Horizontal", 12))
sketch4.addConstraint(Sketcher.Constraint("Vertical", 14))
sketch4.addConstraint(Sketcher.Constraint("Perpendicular", 1, 3))
sketch4.addConstraint(Sketcher.Constraint("Perpendicular", 3, 5))
sketch4.addConstraint(Sketcher.Constraint("Perpendicular", 5, 7))
sketch4.addConstraint(Sketcher.Constraint("Perpendicular", 7, 9))
sketch4.addConstraint(Sketcher.Constraint("Perpendicular", 9, 11))
sketch4.addConstraint(Sketcher.Constraint("Perpendicular", 11, 13))
sketch4.addConstraint(Sketcher.Constraint("Perpendicular", 13, 15))
sketch4.addConstraint(Sketcher.Constraint("Horizontal", 2, 2, 5, 2))
sketch4.addConstraint(Sketcher.Constraint("Horizontal", 1, 2, 6, 2))
sketch4.addConstraint(Sketcher.Constraint("Horizontal", 7, 2, 8, 2))
sketch4.addConstraint(Sketcher.Constraint("Horizontal", 6, 2, 9, 2))
sketch4.addConstraint(Sketcher.Constraint("Horizontal", 5, 2, 10, 2))
sketch4.addConstraint(Sketcher.Constraint("Horizontal", 4, 2, 11, 2))
sketch4.addConstraint(Sketcher.Constraint("Horizontal", 10, 2, 13, 2))
sketch4.addConstraint(Sketcher.Constraint("Horizontal", 9, 2, 14, 2))
sketch4.addConstraint(Sketcher.Constraint("Vertical", 0, 2, 3, 2))
sketch4.addConstraint(Sketcher.Constraint("Vertical", 4, 2, 7, 2))
sketch4.addConstraint(Sketcher.Constraint("Equal", 4, 8))
sketch4.addConstraint(Sketcher.Constraint("DistanceY", 2, 1, 2, 2, Q("6 mm")))
sketch4.addConstraint(Sketcher.Constraint("DistanceX", 1, 2, 0, 2, Q("2 mm")))
sketch4.addConstraint(Sketcher.Constraint("DistanceX", 2, 2, 5, 2, Q("15 mm")))
sketch4.addConstraint(Sketcher.Constraint("DistanceX", 6, 2, 8, 2, Q("41 mm")))
sketch4.addConstraint(Sketcher.Constraint("DistanceX", -1, 1, 0, 2, Q("17.5 mm")))
sketch4.addConstraint(Sketcher.Constraint("DistanceY", 0, 2, -1, 1, Q("112.7 mm")))
pocket2 = doc.addObject("PartDesign::Pocket", "Pocket001")
body.addObject(pocket2)
pocket2.Profile = sketch4
pocket2.Type = "ThroughAll"
pocket2.Reversed = True

# Sketch on XZ plane
sketch5 = doc.addObject("Sketcher::SketchObject", "Sketch004")
body.addObject(sketch5)
sketch5.AttachmentSupport = (doc.XZ_Plane, [""])
sketch5.MapMode = "FlatFace"
sketch5.AttachmentOffset = App.Placement(V(0, 0, -6.5), App.Rotation())
sketch5.addGeometry(Part.LineSegment(V(78, -143, 0), V(22, -143, 0)), False)
sketch5.addGeometry(Part.LineSegment(V(22, -143, 0), V(18, -139, 0)), False)
sketch5.addGeometry(Part.LineSegment(V(18, -139, 0), V(18, -125, 0)), False)
sketch5.addGeometry(Part.LineSegment(V(18, -125, 0), V(22, -121, 0)), False)
sketch5.addGeometry(Part.LineSegment(V(22, -121, 0), V(78, -121, 0)), False)
sketch5.addGeometry(Part.LineSegment(V(78, -121, 0), V(82, -125, 0)), False)
sketch5.addGeometry(Part.LineSegment(V(82, -125, 0), V(82, -139, 0)), False)
sketch5.addGeometry(Part.LineSegment(V(82, -139, 0), V(78, -143, 0)), False)
sketch5.addConstraint(Sketcher.Constraint("Coincident", 0, 2, 1, 1))
sketch5.addConstraint(Sketcher.Constraint("Coincident", 1, 2, 2, 1))
sketch5.addConstraint(Sketcher.Constraint("Coincident", 2, 2, 3, 1))
sketch5.addConstraint(Sketcher.Constraint("Coincident", 3, 2, 4, 1))
sketch5.addConstraint(Sketcher.Constraint("Coincident", 4, 2, 5, 1))
sketch5.addConstraint(Sketcher.Constraint("Coincident", 5, 2, 6, 1))
sketch5.addConstraint(Sketcher.Constraint("Coincident", 6, 2, 7, 1))
sketch5.addConstraint(Sketcher.Constraint("Coincident", 7, 2, 0, 1))
sketch5.addConstraint(Sketcher.Constraint("Horizontal", 0))
sketch5.addConstraint(Sketcher.Constraint("Vertical", 2))
sketch5.addConstraint(Sketcher.Constraint("Horizontal", 4))
sketch5.addConstraint(Sketcher.Constraint("Vertical", 6))
sketch5.addConstraint(Sketcher.Constraint("Perpendicular", 1, 3))
sketch5.addConstraint(Sketcher.Constraint("Perpendicular", 3, 5))
sketch5.addConstraint(Sketcher.Constraint("Perpendicular", 5, 7))
sketch5.addConstraint(Sketcher.Constraint("Horizontal", 2, 2, 5, 2))
sketch5.addConstraint(Sketcher.Constraint("Horizontal", 1, 2, 6, 2))
sketch5.addConstraint(Sketcher.Constraint("Vertical", 0, 2, 3, 2))
sketch5.addConstraint(Sketcher.Constraint("Vertical", 4, 2, 7, 2))
sketch5.addConstraint(Sketcher.Constraint("DistanceX", 1, 2, 0, 2, Q("4 mm")))
sketch5.addConstraint(Sketcher.Constraint("DistanceX", 0, 2, 0, 1, Q("57 mm")))
sketch5.addConstraint(Sketcher.Constraint("DistanceY", 2, 1, 2, 2, Q("14.5 mm")))
sketch5.addConstraint(Sketcher.Constraint("DistanceX", -1, 1, 0, 2, Q("21.5 mm")))
sketch5.addConstraint(Sketcher.Constraint("DistanceY", 0, 2, -1, 1, Q("143.2 mm")))
pocket3 = doc.addObject("PartDesign::Pocket", "Pocket002")
body.addObject(pocket3)
pocket3.Profile = sketch5
pocket3.Type = "ThroughAll"
pocket3.Reversed = True
doc.recompute()

chamfer = doc.addObject("PartDesign::Chamfer", "Chamfer")
body.addObject(chamfer)
chamfer.Base = (pocket3, edges_at(pocket3, [
    (100, 3.25, 0),
    (0, 3.25, 0),
    (100, 3.25, -95.7),
    (90.5, 3.25, -187.7),
    (58.5, 3.25, -187.7),
    (58.5, 3.25, -155.7),
    (0, 3.25, -95.7),
]))
chamfer.Size = 4
doc.recompute()

chamfer2 = doc.addObject("PartDesign::Chamfer", "Chamfer001")
body.addObject(chamfer2)
chamfer2.Base = (chamfer, edges_at(chamfer, [(9.5, 3.25, -95.7), (90.5, 3.25, -95.7)]))
chamfer2.Size = 2

# Sketch on XZ plane
sketch6 = doc.addObject("Sketcher::SketchObject", "Sketch005")
body.addObject(sketch6)
sketch6.AttachmentSupport = (doc.XZ_Plane, [""])
sketch6.MapMode = "FlatFace"
sketch6.AttachmentOffset = App.Placement(V(0, 0, -6.5), App.Rotation())
sketch6.addGeometry(Part.Circle(V(37.5, -11.8, 0), V(0, 0, 1), 2.2), False)
sketch6.addGeometry(Part.Circle(V(62.5, -11.8, 0), V(0, 0, 1), 2.2), False)
sketch6.addConstraint(Sketcher.Constraint("Equal", 0, 1))
sketch6.addConstraint(Sketcher.Constraint("Horizontal", 0, 3, 1, 3))
sketch6.addConstraint(Sketcher.Constraint("Diameter", 0, Q("4.5 mm")))
sketch6.addConstraint(Sketcher.Constraint("DistanceX", 0, 3, 1, 3, Q("25 mm")))
sketch6.addConstraint(Sketcher.Constraint("DistanceY", 0, 3, -1, 1, Q("11.75 mm")))
sketch6.addConstraint(Sketcher.Constraint("DistanceX", -1, 1, 0, 3, Q("37.5 mm")))
pocket4 = doc.addObject("PartDesign::Pocket", "Pocket003")
body.addObject(pocket4)
pocket4.Profile = sketch6
pocket4.Type = "ThroughAll"
pocket4.Reversed = True

# Sketch on XZ plane
sketch7 = doc.addObject("Sketcher::SketchObject", "Sketch006")
body.addObject(sketch7)
sketch7.AttachmentSupport = (doc.XZ_Plane, [""])
sketch7.MapMode = "FlatFace"
sketch7.AttachmentOffset = App.Placement(V(0, 0, -6.5), App.Rotation())
sketch7.addGeometry(Part.Circle(V(5, -81.8, 0), V(0, 0, 1), 2.2), False)
sketch7.addGeometry(Part.Circle(V(95, -81.8, 0), V(0, 0, 1), 2.2), False)
sketch7.addGeometry(Part.Circle(V(95, -8.2, 0), V(0, 0, 1), 2.2), False)
sketch7.addGeometry(Part.Circle(V(5, -8.2, 0), V(0, 0, 1), 2.2), False)
sketch7.addConstraint(Sketcher.Constraint("Equal", 0, 1))
sketch7.addConstraint(Sketcher.Constraint("Equal", 1, 2))
sketch7.addConstraint(Sketcher.Constraint("Equal", 2, 3))
sketch7.addConstraint(Sketcher.Constraint("Horizontal", 0, 3, 1, 3))
sketch7.addConstraint(Sketcher.Constraint("Horizontal", 2, 3, 3, 3))
sketch7.addConstraint(Sketcher.Constraint("Vertical", 1, 3, 2, 3))
sketch7.addConstraint(Sketcher.Constraint("Vertical", 0, 3, 3, 3))
sketch7.addConstraint(Sketcher.Constraint("Diameter", 0, Q("4.5 mm")))
sketch7.addConstraint(Sketcher.Constraint("DistanceX", -1, 1, 0, 3, Q("5 mm")))
sketch7.addConstraint(Sketcher.Constraint("DistanceY", 2, 3, -1, 1, Q("8.25 mm")))
sketch7.addConstraint(Sketcher.Constraint("DistanceX", -1, 1, 1, 3, Q("95 mm")))
sketch7.addConstraint(Sketcher.Constraint("DistanceY", 1, 3, 2, 3, Q("73.5 mm")))
pocket5 = doc.addObject("PartDesign::Pocket", "Pocket004")
body.addObject(pocket5)
pocket5.Profile = sketch7
pocket5.Type = "ThroughAll"
pocket5.Reversed = True

# Sketch on XZ plane
sketch8 = doc.addObject("Sketcher::SketchObject", "Sketch007")
body.addObject(sketch8)
sketch8.AttachmentSupport = (doc.XZ_Plane, [""])
sketch8.MapMode = "FlatFace"
sketch8.AttachmentOffset = App.Placement(V(0, 0, -6.5), App.Rotation())
sketch8.addGeometry(Part.Circle(V(50, -63.8, 0), V(0, 0, 1), 2.2), False)
sketch8.addGeometry(Part.LineSegment(V(53.2, -86.8, 0), V(46.8, -86.8, 0)), False)
sketch8.addGeometry(Part.LineSegment(V(46.8, -86.8, 0), V(46.8, -78.8, 0)), False)
sketch8.addGeometry(Part.LineSegment(V(46.8, -78.8, 0), V(53.2, -78.8, 0)), False)
sketch8.addGeometry(Part.LineSegment(V(53.2, -78.8, 0), V(53.2, -86.8, 0)), False)
sketch8.addConstraint(Sketcher.Constraint("Coincident", 1, 2, 2, 1))
sketch8.addConstraint(Sketcher.Constraint("Coincident", 2, 2, 3, 1))
sketch8.addConstraint(Sketcher.Constraint("Coincident", 3, 2, 4, 1))
sketch8.addConstraint(Sketcher.Constraint("Coincident", 4, 2, 1, 1))
sketch8.addConstraint(Sketcher.Constraint("Horizontal", 1))
sketch8.addConstraint(Sketcher.Constraint("Vertical", 2))
sketch8.addConstraint(Sketcher.Constraint("Horizontal", 3))
sketch8.addConstraint(Sketcher.Constraint("Vertical", 4))
sketch8.addConstraint(Sketcher.Constraint("Diameter", 0, Q("4.5 mm")))
sketch8.addConstraint(Sketcher.Constraint("DistanceY", 2, 1, 2, 2, Q("8 mm")))
sketch8.addConstraint(Sketcher.Constraint("DistanceX", 1, 2, 1, 1, Q("6.5 mm")))
sketch8.addConstraint(Sketcher.Constraint("DistanceY", 2, 2, 0, 3, Q("15 mm")))
sketch8.addConstraint(Sketcher.Constraint("DistanceX", -1, 1, 0, 3, Q("50 mm")))
sketch8.addConstraint(Sketcher.Constraint("DistanceY", 0, 3, -1, 1, Q("63.75 mm")))
sketch8.addConstraint(Sketcher.Constraint("DistanceX", -1, 1, 1, 2, Q("46.75 mm")))
pocket6 = doc.addObject("PartDesign::Pocket", "Pocket005")
body.addObject(pocket6)
pocket6.Profile = sketch8
pocket6.Type = "ThroughAll"
pocket6.Reversed = True

# Sketch on XZ plane
sketch9 = doc.addObject("Sketcher::SketchObject", "Sketch008")
body.addObject(sketch9)
sketch9.AttachmentSupport = (doc.XZ_Plane, [""])
sketch9.MapMode = "FlatFace"
sketch9.AttachmentOffset = App.Placement(V(0, 0, -6.5), App.Rotation())
sketch9.addGeometry(Part.LineSegment(V(79.5, -182.7, 0), V(75.5, -182.7, 0)), False)
sketch9.addGeometry(Part.LineSegment(V(75.5, -182.7, 0), V(71.5, -178.7, 0)), False)
sketch9.addGeometry(Part.LineSegment(V(71.5, -178.7, 0), V(71.5, -174.7, 0)), False)
sketch9.addGeometry(Part.LineSegment(V(71.5, -174.7, 0), V(75.5, -170.7, 0)), False)
sketch9.addGeometry(Part.LineSegment(V(75.5, -170.7, 0), V(79.5, -170.7, 0)), False)
sketch9.addGeometry(Part.LineSegment(V(79.5, -170.7, 0), V(83.5, -174.7, 0)), False)
sketch9.addGeometry(Part.LineSegment(V(83.5, -174.7, 0), V(83.5, -178.7, 0)), False)
sketch9.addGeometry(Part.LineSegment(V(83.5, -178.7, 0), V(79.5, -182.7, 0)), False)
sketch9.addGeometry(Part.Circle(V(70.5, -181.7, 0), V(0, 0, 1), 1.6), False)
sketch9.addGeometry(Part.Circle(V(70.5, -171.7, 0), V(0, 0, 1), 1.6), False)
sketch9.addGeometry(Part.Circle(V(84.5, -171.7, 0), V(0, 0, 1), 1.6), False)
sketch9.addGeometry(Part.Circle(V(84.5, -181.7, 0), V(0, 0, 1), 1.6), False)
sketch9.addConstraint(Sketcher.Constraint("Coincident", 0, 2, 1, 1))
sketch9.addConstraint(Sketcher.Constraint("Coincident", 1, 2, 2, 1))
sketch9.addConstraint(Sketcher.Constraint("Coincident", 2, 2, 3, 1))
sketch9.addConstraint(Sketcher.Constraint("Coincident", 3, 2, 4, 1))
sketch9.addConstraint(Sketcher.Constraint("Coincident", 4, 2, 5, 1))
sketch9.addConstraint(Sketcher.Constraint("Coincident", 5, 2, 6, 1))
sketch9.addConstraint(Sketcher.Constraint("Coincident", 6, 2, 7, 1))
sketch9.addConstraint(Sketcher.Constraint("Coincident", 7, 2, 0, 1))
sketch9.addConstraint(Sketcher.Constraint("Horizontal", 0))
sketch9.addConstraint(Sketcher.Constraint("Vertical", 2))
sketch9.addConstraint(Sketcher.Constraint("Horizontal", 4))
sketch9.addConstraint(Sketcher.Constraint("Vertical", 6))
sketch9.addConstraint(Sketcher.Constraint("Equal", 8, 9))
sketch9.addConstraint(Sketcher.Constraint("Equal", 9, 10))
sketch9.addConstraint(Sketcher.Constraint("Equal", 10, 11))
sketch9.addConstraint(Sketcher.Constraint("Perpendicular", 1, 3))
sketch9.addConstraint(Sketcher.Constraint("Perpendicular", 3, 5))
sketch9.addConstraint(Sketcher.Constraint("Perpendicular", 5, 7))
sketch9.addConstraint(Sketcher.Constraint("Horizontal", 9, 3, 10, 3))
sketch9.addConstraint(Sketcher.Constraint("Horizontal", 8, 3, 11, 3))
sketch9.addConstraint(Sketcher.Constraint("Horizontal", 2, 2, 5, 2))
sketch9.addConstraint(Sketcher.Constraint("Horizontal", 1, 2, 6, 2))
sketch9.addConstraint(Sketcher.Constraint("Vertical", 8, 3, 9, 3))
sketch9.addConstraint(Sketcher.Constraint("Vertical", 10, 3, 11, 3))
sketch9.addConstraint(Sketcher.Constraint("Vertical", 0, 2, 3, 2))
sketch9.addConstraint(Sketcher.Constraint("Vertical", 4, 2, 7, 2))
sketch9.addConstraint(Sketcher.Constraint("Equal", 4, 2))
sketch9.addConstraint(Sketcher.Constraint("Diameter", 8, Q("3.2 mm")))
sketch9.addConstraint(Sketcher.Constraint("DistanceX", 0, 2, 0, 1, Q("4 mm")))
sketch9.addConstraint(Sketcher.Constraint("DistanceY", 8, 3, 9, 3, Q("10 mm")))
sketch9.addConstraint(Sketcher.Constraint("DistanceX", 9, 3, 10, 3, Q("14 mm")))
sketch9.addConstraint(Sketcher.Constraint("DistanceY", 0, 2, 8, 3, Q("1 mm")))
sketch9.addConstraint(Sketcher.Constraint("DistanceX", 8, 3, 1, 2, Q("1 mm")))
sketch9.addConstraint(Sketcher.Constraint("DistanceX", 1, 2, 0, 2, Q("4 mm")))
sketch9.addConstraint(Sketcher.Constraint("DistanceX", -1, 1, 8, 3, Q("70.5 mm")))
sketch9.addConstraint(Sketcher.Constraint("DistanceY", 8, 3, -1, 1, Q("181.7 mm")))
pocket7 = doc.addObject("PartDesign::Pocket", "Pocket006")
body.addObject(pocket7)
pocket7.Profile = sketch9
pocket7.Type = "ThroughAll"
pocket7.Reversed = True

# Sketch on XZ plane
sketch10 = doc.addObject("Sketcher::SketchObject", "Sketch009")
body.addObject(sketch10)
sketch10.AttachmentSupport = (doc.XZ_Plane, [""])
sketch10.MapMode = "FlatFace"
sketch10.AttachmentOffset = App.Placement(V(0, 0, -6.5), App.Rotation())
sketch10.addGeometry(Part.LineSegment(V(32.5, -152.7, 0), V(24.5, -152.7, 0)), False)
sketch10.addGeometry(Part.LineSegment(V(24.5, -152.7, 0), V(24.5, -146.2, 0)), False)
sketch10.addGeometry(Part.LineSegment(V(24.5, -146.2, 0), V(32.5, -146.2, 0)), False)
sketch10.addGeometry(Part.LineSegment(V(32.5, -146.2, 0), V(32.5, -152.7, 0)), False)
sketch10.addGeometry(Part.Circle(V(50, -149.4, 0), V(0, 0, 1), 2.2), False)
sketch10.addGeometry(Part.LineSegment(V(75.5, -152.7, 0), V(67.5, -152.7, 0)), False)
sketch10.addGeometry(Part.LineSegment(V(67.5, -152.7, 0), V(67.5, -146.2, 0)), False)
sketch10.addGeometry(Part.LineSegment(V(67.5, -146.2, 0), V(75.5, -146.2, 0)), False)
sketch10.addGeometry(Part.LineSegment(V(75.5, -146.2, 0), V(75.5, -152.7, 0)), False)
sketch10.addConstraint(Sketcher.Constraint("Coincident", 0, 2, 1, 1))
sketch10.addConstraint(Sketcher.Constraint("Coincident", 1, 2, 2, 1))
sketch10.addConstraint(Sketcher.Constraint("Coincident", 2, 2, 3, 1))
sketch10.addConstraint(Sketcher.Constraint("Coincident", 3, 2, 0, 1))
sketch10.addConstraint(Sketcher.Constraint("Coincident", 5, 2, 6, 1))
sketch10.addConstraint(Sketcher.Constraint("Coincident", 6, 2, 7, 1))
sketch10.addConstraint(Sketcher.Constraint("Coincident", 7, 2, 8, 1))
sketch10.addConstraint(Sketcher.Constraint("Coincident", 8, 2, 5, 1))
sketch10.addConstraint(Sketcher.Constraint("Horizontal", 0))
sketch10.addConstraint(Sketcher.Constraint("Vertical", 1))
sketch10.addConstraint(Sketcher.Constraint("Horizontal", 2))
sketch10.addConstraint(Sketcher.Constraint("Vertical", 3))
sketch10.addConstraint(Sketcher.Constraint("Horizontal", 5))
sketch10.addConstraint(Sketcher.Constraint("Vertical", 6))
sketch10.addConstraint(Sketcher.Constraint("Horizontal", 7))
sketch10.addConstraint(Sketcher.Constraint("Vertical", 8))
sketch10.addConstraint(Sketcher.Constraint("Horizontal", 3, 2, 5, 2))
sketch10.addConstraint(Sketcher.Constraint("Horizontal", 2, 2, 6, 2))
sketch10.addConstraint(Sketcher.Constraint("Equal", 2, 5))
sketch10.addConstraint(Sketcher.Constraint("Diameter", 4, Q("4.5 mm")))
sketch10.addConstraint(Sketcher.Constraint("DistanceX", 0, 2, 0, 1, Q("8 mm")))
sketch10.addConstraint(Sketcher.Constraint("DistanceY", 1, 1, 1, 2, Q("6.5 mm")))
sketch10.addConstraint(Sketcher.Constraint("DistanceX", 3, 2, 5, 2, Q("35 mm")))
sketch10.addConstraint(Sketcher.Constraint("DistanceX", 2, 2, 4, 3, Q("17.5 mm")))
sketch10.addConstraint(Sketcher.Constraint("DistanceX", -1, 1, 4, 3, Q("50 mm")))
sketch10.addConstraint(Sketcher.Constraint("DistanceY", 0, 2, -1, 1, Q("152.7 mm")))
sketch10.addConstraint(Sketcher.Constraint("DistanceY", 4, 3, -1, 1, Q("149.45 mm")))
pocket8 = doc.addObject("PartDesign::Pocket", "Pocket007")
body.addObject(pocket8)
pocket8.Profile = sketch10
pocket8.Type = "ThroughAll"
pocket8.Reversed = True
doc.recompute()

chamfer3 = doc.addObject("PartDesign::Chamfer", "Chamfer002")
body.addObject(chamfer3)
chamfer3.Base = (pocket8, edges_at(pocket8, [(9.5, 3.25, -155.7)]))
chamfer3.Size = 2

# Sketch on XZ plane
sketch11 = doc.addObject("Sketcher::SketchObject", "Sketch010")
body.addObject(sketch11)
sketch11.AttachmentSupport = (doc.XZ_Plane, [""])
sketch11.MapMode = "FlatFace"
sketch11.AttachmentOffset = App.Placement(V(0, 0, -6.5), App.Rotation())
sketch11.addGeometry(Part.LineSegment(V(54, -143, 0), V(46, -143, 0)), False)
sketch11.addGeometry(Part.LineSegment(V(46, -143, 0), V(46, -121, 0)), False)
sketch11.addGeometry(Part.LineSegment(V(46, -121, 0), V(54, -121, 0)), False)
sketch11.addGeometry(Part.LineSegment(V(54, -121, 0), V(54, -143, 0)), False)
sketch11.addConstraint(Sketcher.Constraint("Coincident", 0, 2, 1, 1))
sketch11.addConstraint(Sketcher.Constraint("Coincident", 1, 2, 2, 1))
sketch11.addConstraint(Sketcher.Constraint("Coincident", 2, 2, 3, 1))
sketch11.addConstraint(Sketcher.Constraint("Coincident", 3, 2, 0, 1))
sketch11.addConstraint(Sketcher.Constraint("Horizontal", 0))
sketch11.addConstraint(Sketcher.Constraint("Vertical", 1))
sketch11.addConstraint(Sketcher.Constraint("Horizontal", 2))
sketch11.addConstraint(Sketcher.Constraint("Vertical", 3))
sketch11.addConstraint(Sketcher.Constraint("DistanceX", 0, 2, 0, 1, Q("8 mm")))
sketch11.addConstraint(Sketcher.Constraint("DistanceY", 1, 1, 1, 2, Q("22.5 mm")))
sketch11.addConstraint(Sketcher.Constraint("DistanceX", -1, 1, 0, 2, Q("46 mm")))
sketch11.addConstraint(Sketcher.Constraint("DistanceY", 0, 2, -1, 1, Q("143.2 mm")))
pad3 = doc.addObject("PartDesign::Pad", "Pad002")
body.addObject(pad3)
pad3.Profile = sketch11
pad3.Length = 6.5
doc.recompute()

chamfer4 = doc.addObject("PartDesign::Chamfer", "Chamfer003")
body.addObject(chamfer4)
chamfer4.Base = (pad3, edges_at(pad3, [
    (46, 3.25, -143.2),
    (54, 3.25, -143.2),
    (46, 3.25, -120.7),
    (54, 3.25, -120.7),
]))
chamfer4.Size = 4

doc.recompute()
